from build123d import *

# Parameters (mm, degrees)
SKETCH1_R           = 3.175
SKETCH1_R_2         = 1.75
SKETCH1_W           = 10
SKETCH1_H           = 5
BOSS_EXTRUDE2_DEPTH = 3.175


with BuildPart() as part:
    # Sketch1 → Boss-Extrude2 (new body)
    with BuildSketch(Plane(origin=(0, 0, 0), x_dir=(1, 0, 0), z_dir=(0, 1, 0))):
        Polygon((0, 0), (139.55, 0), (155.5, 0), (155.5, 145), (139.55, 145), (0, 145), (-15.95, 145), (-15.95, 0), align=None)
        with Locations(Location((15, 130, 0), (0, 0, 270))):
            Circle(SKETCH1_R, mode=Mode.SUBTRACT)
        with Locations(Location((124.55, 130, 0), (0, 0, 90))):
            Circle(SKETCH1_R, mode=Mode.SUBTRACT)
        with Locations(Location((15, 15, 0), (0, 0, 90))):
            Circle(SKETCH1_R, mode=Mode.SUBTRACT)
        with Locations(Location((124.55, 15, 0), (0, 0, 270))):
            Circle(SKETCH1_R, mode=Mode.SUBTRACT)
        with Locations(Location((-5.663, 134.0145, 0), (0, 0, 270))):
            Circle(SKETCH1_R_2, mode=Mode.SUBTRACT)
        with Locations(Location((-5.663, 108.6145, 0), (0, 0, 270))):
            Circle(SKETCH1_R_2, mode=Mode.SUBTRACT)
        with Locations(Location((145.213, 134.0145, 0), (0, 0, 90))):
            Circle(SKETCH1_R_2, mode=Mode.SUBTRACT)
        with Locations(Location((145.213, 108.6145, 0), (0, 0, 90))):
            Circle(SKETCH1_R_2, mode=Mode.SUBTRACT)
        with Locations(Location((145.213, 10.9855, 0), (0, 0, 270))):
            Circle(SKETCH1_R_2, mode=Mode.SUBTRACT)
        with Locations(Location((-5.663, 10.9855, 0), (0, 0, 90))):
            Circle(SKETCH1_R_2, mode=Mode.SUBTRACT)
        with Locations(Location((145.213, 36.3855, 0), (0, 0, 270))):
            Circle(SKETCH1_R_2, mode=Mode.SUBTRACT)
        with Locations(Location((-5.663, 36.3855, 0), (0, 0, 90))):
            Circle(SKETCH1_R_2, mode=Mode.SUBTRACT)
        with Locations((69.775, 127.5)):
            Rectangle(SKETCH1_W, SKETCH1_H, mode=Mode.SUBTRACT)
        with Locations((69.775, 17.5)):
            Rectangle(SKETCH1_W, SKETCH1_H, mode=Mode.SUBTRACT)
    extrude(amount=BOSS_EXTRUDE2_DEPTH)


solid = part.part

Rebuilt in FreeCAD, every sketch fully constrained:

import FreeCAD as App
import Part
import Sketcher
from FreeCAD import Vector
Q = App.Units.Quantity


def add_polygon(sketch, points):
    """Adds a closed chain of lines whose ends are joined by coincident constraints."""
    first, n = sketch.GeometryCount, len(points)
    for a, b in zip(points, points[1:] + points[:1]):
        sketch.addGeometry(Part.LineSegment(App.Vector(*a, 0), App.Vector(*b, 0)), False)
    for i in range(n):
        sketch.addConstraint(Sketcher.Constraint("Coincident", first + i, 2, first + (i + 1) % n, 1))

doc = App.newDocument("Part")
params = doc.addObject("Spreadsheet::Sheet", "Params")
for row, (alias, value) in enumerate([
    ("sketch1_diameter", "3.5 mm"),
    ("sketch1_diameter2", "6.35 mm"),
    ("sketch1_width", "10 mm"),
    ("sketch1_height", "145 mm"),
    ("sketch1_height2", "5 mm"),
    ("pad1_length", "3.175 mm"),
], start=1):
    params.set(f"A{row}", alias)
    params.set(f"B{row}", "=" + value)
    params.setAlias(f"B{row}", alias)

body = doc.addObject("PartDesign::Body", "Body")

# Sketch on XZ plane
sketch1 = body.newObject("Sketcher::SketchObject", "Sketch")
sketch1.AttachmentSupport = (doc.getObject("XZ_Plane"), [""])
sketch1.MapMode = "FlatFace"
add_polygon(sketch1, [(155.5, 0), (155.5, -145), (-15.9, -145), (-15.9, 0)])  # lines 0-3
sketch1.addGeometry(Part.Circle(Vector(-5.7, -11, 0), Vector(0, 0, 1), 1.8), False)  # 4
sketch1.addGeometry(Part.Circle(Vector(15, -15, 0), Vector(0, 0, 1), 3.2), False)  # 5
sketch1.addGeometry(Part.Circle(Vector(-5.7, -36.4, 0), Vector(0, 0, 1), 1.8), False)  # 6
add_polygon(sketch1, [(74.8, -15), (64.8, -15), (64.8, -20), (74.8, -20)])  # lines 7-10
sketch1.addGeometry(Part.Circle(Vector(124.5, -15, 0), Vector(0, 0, 1), 3.2), False)  # 11
sketch1.addGeometry(Part.Circle(Vector(145.2, -11, 0), Vector(0, 0, 1), 1.8), False)  # 12
sketch1.addGeometry(Part.Circle(Vector(145.2, -36.4, 0), Vector(0, 0, 1), 1.8), False)  # 13
sketch1.addGeometry(Part.Circle(Vector(-5.7, -108.6, 0), Vector(0, 0, 1), 1.8), False)  # 14
sketch1.addGeometry(Part.Circle(Vector(-5.7, -134, 0), Vector(0, 0, 1), 1.8), False)  # 15
sketch1.addGeometry(Part.Circle(Vector(15, -130, 0), Vector(0, 0, 1), 3.2), False)  # 16
add_polygon(sketch1, [(74.8, -125), (64.8, -125), (64.8, -130), (74.8, -130)])  # lines 17-20
sketch1.addGeometry(Part.Circle(Vector(145.2, -108.6, 0), Vector(0, 0, 1), 1.8), False)  # 21
sketch1.addGeometry(Part.Circle(Vector(124.5, -130, 0), Vector(0, 0, 1), 3.2), False)  # 22
sketch1.addGeometry(Part.Circle(Vector(145.2, -134, 0), Vector(0, 0, 1), 1.8), False)  # 23
sketch1.addConstraint([
    Sketcher.Constraint("Vertical", 0),
    Sketcher.Constraint("Horizontal", 1),
    Sketcher.Constraint("Vertical", 2),
    Sketcher.Constraint("Horizontal", 3),
    Sketcher.Constraint("Horizontal", 7),
    Sketcher.Constraint("Vertical", 8),
    Sketcher.Constraint("Horizontal", 9),
    Sketcher.Constraint("Vertical", 10),
    Sketcher.Constraint("Horizontal", 17),
    Sketcher.Constraint("Vertical", 18),
    Sketcher.Constraint("Horizontal", 19),
    Sketcher.Constraint("Vertical", 20),
    Sketcher.Constraint("Equal", 4, 6),
    Sketcher.Constraint("Equal", 5, 11),
    Sketcher.Constraint("Equal", 6, 12),
    Sketcher.Constraint("Equal", 12, 13),
    Sketcher.Constraint("Equal", 13, 14),
    Sketcher.Constraint("Equal", 14, 15),
    Sketcher.Constraint("Equal", 11, 16),
    Sketcher.Constraint("Equal", 15, 21),
    Sketcher.Constraint("Equal", 16, 22),
    Sketcher.Constraint("Equal", 21, 23),
    Sketcher.Constraint("PointOnObject", 2, 2, -1),
    Sketcher.Constraint("Horizontal", 5, 3, 11, 3),
    Sketcher.Constraint("Horizontal", 4, 3, 12, 3),
    Sketcher.Constraint("Horizontal", 6, 3, 13, 3),
    Sketcher.Constraint("Horizontal", 14, 3, 21, 3),
    Sketcher.Constraint("Horizontal", 16, 3, 22, 3),
    Sketcher.Constraint("Horizontal", 15, 3, 23, 3),
    Sketcher.Constraint("Horizontal", 11, 3, 7, 2),
    Sketcher.Constraint("Horizontal", 22, 3, 18, 2),
    Sketcher.Constraint("Vertical", 4, 3, 6, 3),
    Sketcher.Constraint("Vertical", 12, 3, 13, 3),
    Sketcher.Constraint("Vertical", 6, 3, 14, 3),
    Sketcher.Constraint("Vertical", 14, 3, 15, 3),
    Sketcher.Constraint("Vertical", 5, 3, 16, 3),
    Sketcher.Constraint("Vertical", 13, 3, 21, 3),
    Sketcher.Constraint("Vertical", 11, 3, 22, 3),
    Sketcher.Constraint("Vertical", 21, 3, 23, 3),
    Sketcher.Constraint("Vertical", 8, 2, 17, 2),
    Sketcher.Constraint("Vertical", 10, 2, 19, 2),
    Sketcher.Constraint("Equal", 10, 18),
    Sketcher.Constraint("Diameter", 4, Q("3.5 mm")),
    Sketcher.Constraint("Diameter", 5, Q("6.35 mm")),
    Sketcher.Constraint("DistanceX", 7, 2, 7, 1, Q("10 mm")),
    Sketcher.Constraint("DistanceY", 0, 2, 0, 1, Q("145 mm")),
    Sketcher.Constraint("DistanceY", 8, 2, 8, 1, Q("5 mm")),
    Sketcher.Constraint("DistanceX", -1, 1, 5, 3, Q("15 mm")),
    Sketcher.Constraint("DistanceY", 5, 3, -1, 1, Q("15 mm")),
    Sketcher.Constraint("DistanceY", 16, 3, -1, 1, Q("130 mm")),
    Sketcher.Constraint("DistanceX", 1, 2, 1, 1, Q("171.45 mm")),
    Sketcher.Constraint("DistanceX", -1, 1, 0, 2, Q("155.5 mm")),
    Sketcher.Constraint("DistanceY", 6, 3, 4, 3, Q("25.4 mm")),
    Sketcher.Constraint("DistanceY", 15, 3, 14, 3, Q("25.4 mm")),
    Sketcher.Constraint("DistanceX", -1, 1, 11, 3, Q("124.55 mm")),
    Sketcher.Constraint("DistanceX", 4, 3, -1, 1, Q("5.663 mm")),
    Sketcher.Constraint("DistanceX", -1, 1, 12, 3, Q("145.213 mm")),
    Sketcher.Constraint("DistanceX", -1, 1, 7, 2, Q("64.775 mm")),
    Sketcher.Constraint("DistanceY", 14, 3, 6, 3, Q("72.229 mm")),
    Sketcher.Constraint("DistanceY", 4, 3, -1, 1, Q("10.9855 mm")),
])
sketch1.setExpression("Constraints[54]", "Params.sketch1_diameter")
sketch1.setExpression("Constraints[55]", "Params.sketch1_diameter2")
sketch1.setExpression("Constraints[56]", "Params.sketch1_width")
sketch1.setExpression("Constraints[57]", "Params.sketch1_height")
sketch1.setExpression("Constraints[58]", "Params.sketch1_height2")
pad1 = body.newObject("PartDesign::Pad", "Pad")
pad1.Profile = sketch1
pad1.setExpression("Length", "Params.pad1_length")
pad1.Reversed = True

doc.recompute()
